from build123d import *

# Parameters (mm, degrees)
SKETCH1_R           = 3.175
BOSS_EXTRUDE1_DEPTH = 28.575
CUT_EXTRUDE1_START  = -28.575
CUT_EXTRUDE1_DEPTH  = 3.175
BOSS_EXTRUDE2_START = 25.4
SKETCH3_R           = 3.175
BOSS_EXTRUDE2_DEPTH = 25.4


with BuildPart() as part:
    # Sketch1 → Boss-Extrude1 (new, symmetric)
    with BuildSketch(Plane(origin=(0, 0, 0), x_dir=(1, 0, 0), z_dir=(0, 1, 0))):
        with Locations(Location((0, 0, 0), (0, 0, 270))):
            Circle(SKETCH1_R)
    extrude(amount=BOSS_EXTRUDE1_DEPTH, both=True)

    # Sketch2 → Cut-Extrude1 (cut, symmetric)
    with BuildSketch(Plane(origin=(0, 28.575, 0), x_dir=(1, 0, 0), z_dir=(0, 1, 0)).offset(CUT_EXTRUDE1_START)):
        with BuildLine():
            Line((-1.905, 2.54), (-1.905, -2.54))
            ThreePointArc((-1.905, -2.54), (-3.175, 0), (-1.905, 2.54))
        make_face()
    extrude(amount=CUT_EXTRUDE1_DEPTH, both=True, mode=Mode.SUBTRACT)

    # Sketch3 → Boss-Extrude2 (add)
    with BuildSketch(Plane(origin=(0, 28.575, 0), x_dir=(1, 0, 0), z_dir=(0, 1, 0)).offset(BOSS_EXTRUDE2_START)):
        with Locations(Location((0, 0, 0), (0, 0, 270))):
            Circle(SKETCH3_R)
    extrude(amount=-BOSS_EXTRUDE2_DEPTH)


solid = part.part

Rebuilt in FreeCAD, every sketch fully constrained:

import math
import FreeCAD as App
import Part
import Sketcher

V = App.Vector
Q = App.Units.Quantity

doc = App.newDocument("Part")
body = doc.addObject("PartDesign::Body", "Body")

# Sketch on XZ plane
sketch1 = body.newObject("Sketcher::SketchObject", "Sketch")
sketch1.AttachmentSupport = (doc.getObject("XZ_Plane"), [""])
sketch1.MapMode = "FlatFace"
sketch1.addGeometry(Part.Circle(V(0, 0, 0), V(0, 0, 1), 3.2), False)
sketch1.addConstraint([
    Sketcher.Constraint("Coincident", 0, 3, -1, 1),
    Sketcher.Constraint("Diameter", 0, Q("0.25 in")),
])
pad1 = body.newObject("PartDesign::Pad", "Pad")
pad1.Profile = sketch1
pad1.Length = Q("2.25 in")
pad1.Midplane = True

# Sketch on XZ plane
sketch2 = body.newObject("Sketcher::SketchObject", "Sketch001")
sketch2.AttachmentSupport = (doc.getObject("XZ_Plane"), [""])
sketch2.MapMode = "FlatFace"
sketch2.addGeometry([
    Part.LineSegment(V(-1.9, 2.5, 0), V(-1.9, -2.5, 0)),
    Part.ArcOfCircle(Part.Circle(V(0, 0, 0), V(0, 0, 1), 3.2), math.radians(127), math.radians(233)),
], False)
sketch2.addConstraint([
    Sketcher.Constraint("Coincident", 0, 1, 1, 1),
    Sketcher.Constraint("Coincident", 1, 2, 0, 2),
    Sketcher.Constraint("Vertical", 0),
    Sketcher.Constraint("Coincident", 1, 3, -1, 1),
    Sketcher.Constraint("DistanceY", 0, 2, 0, 1, Q("0.2 in")),
    Sketcher.Constraint("Radius", 1, Q("0.125 in")),
])
pocket1 = body.newObject("PartDesign::Pocket", "Pocket")
pocket1.Profile = sketch2
pocket1.Length = Q("0.25 in")
pocket1.Midplane = True

# Sketch on XZ plane
sketch3 = body.newObject("Sketcher::SketchObject", "Sketch002")
sketch3.AttachmentSupport = (doc.getObject("XZ_Plane"), [""])
sketch3.MapMode = "FlatFace"
sketch3.AttachmentOffset = App.Placement(V(0, 0, -2.125 * 25.4), App.Rotation())
sketch3.addGeometry(Part.Circle(V(0, 0, 0), V(0, 0, 1), 3.2), False)
sketch3.addConstraint([
    Sketcher.Constraint("Coincident", 0, 3, -1, 1),
    Sketcher.Constraint("Diameter", 0, Q("0.25 in")),
])
pad2 = body.newObject("PartDesign::Pad", "Pad001")
pad2.Profile = sketch3
pad2.Length = Q("1 in")

doc.recompute()
